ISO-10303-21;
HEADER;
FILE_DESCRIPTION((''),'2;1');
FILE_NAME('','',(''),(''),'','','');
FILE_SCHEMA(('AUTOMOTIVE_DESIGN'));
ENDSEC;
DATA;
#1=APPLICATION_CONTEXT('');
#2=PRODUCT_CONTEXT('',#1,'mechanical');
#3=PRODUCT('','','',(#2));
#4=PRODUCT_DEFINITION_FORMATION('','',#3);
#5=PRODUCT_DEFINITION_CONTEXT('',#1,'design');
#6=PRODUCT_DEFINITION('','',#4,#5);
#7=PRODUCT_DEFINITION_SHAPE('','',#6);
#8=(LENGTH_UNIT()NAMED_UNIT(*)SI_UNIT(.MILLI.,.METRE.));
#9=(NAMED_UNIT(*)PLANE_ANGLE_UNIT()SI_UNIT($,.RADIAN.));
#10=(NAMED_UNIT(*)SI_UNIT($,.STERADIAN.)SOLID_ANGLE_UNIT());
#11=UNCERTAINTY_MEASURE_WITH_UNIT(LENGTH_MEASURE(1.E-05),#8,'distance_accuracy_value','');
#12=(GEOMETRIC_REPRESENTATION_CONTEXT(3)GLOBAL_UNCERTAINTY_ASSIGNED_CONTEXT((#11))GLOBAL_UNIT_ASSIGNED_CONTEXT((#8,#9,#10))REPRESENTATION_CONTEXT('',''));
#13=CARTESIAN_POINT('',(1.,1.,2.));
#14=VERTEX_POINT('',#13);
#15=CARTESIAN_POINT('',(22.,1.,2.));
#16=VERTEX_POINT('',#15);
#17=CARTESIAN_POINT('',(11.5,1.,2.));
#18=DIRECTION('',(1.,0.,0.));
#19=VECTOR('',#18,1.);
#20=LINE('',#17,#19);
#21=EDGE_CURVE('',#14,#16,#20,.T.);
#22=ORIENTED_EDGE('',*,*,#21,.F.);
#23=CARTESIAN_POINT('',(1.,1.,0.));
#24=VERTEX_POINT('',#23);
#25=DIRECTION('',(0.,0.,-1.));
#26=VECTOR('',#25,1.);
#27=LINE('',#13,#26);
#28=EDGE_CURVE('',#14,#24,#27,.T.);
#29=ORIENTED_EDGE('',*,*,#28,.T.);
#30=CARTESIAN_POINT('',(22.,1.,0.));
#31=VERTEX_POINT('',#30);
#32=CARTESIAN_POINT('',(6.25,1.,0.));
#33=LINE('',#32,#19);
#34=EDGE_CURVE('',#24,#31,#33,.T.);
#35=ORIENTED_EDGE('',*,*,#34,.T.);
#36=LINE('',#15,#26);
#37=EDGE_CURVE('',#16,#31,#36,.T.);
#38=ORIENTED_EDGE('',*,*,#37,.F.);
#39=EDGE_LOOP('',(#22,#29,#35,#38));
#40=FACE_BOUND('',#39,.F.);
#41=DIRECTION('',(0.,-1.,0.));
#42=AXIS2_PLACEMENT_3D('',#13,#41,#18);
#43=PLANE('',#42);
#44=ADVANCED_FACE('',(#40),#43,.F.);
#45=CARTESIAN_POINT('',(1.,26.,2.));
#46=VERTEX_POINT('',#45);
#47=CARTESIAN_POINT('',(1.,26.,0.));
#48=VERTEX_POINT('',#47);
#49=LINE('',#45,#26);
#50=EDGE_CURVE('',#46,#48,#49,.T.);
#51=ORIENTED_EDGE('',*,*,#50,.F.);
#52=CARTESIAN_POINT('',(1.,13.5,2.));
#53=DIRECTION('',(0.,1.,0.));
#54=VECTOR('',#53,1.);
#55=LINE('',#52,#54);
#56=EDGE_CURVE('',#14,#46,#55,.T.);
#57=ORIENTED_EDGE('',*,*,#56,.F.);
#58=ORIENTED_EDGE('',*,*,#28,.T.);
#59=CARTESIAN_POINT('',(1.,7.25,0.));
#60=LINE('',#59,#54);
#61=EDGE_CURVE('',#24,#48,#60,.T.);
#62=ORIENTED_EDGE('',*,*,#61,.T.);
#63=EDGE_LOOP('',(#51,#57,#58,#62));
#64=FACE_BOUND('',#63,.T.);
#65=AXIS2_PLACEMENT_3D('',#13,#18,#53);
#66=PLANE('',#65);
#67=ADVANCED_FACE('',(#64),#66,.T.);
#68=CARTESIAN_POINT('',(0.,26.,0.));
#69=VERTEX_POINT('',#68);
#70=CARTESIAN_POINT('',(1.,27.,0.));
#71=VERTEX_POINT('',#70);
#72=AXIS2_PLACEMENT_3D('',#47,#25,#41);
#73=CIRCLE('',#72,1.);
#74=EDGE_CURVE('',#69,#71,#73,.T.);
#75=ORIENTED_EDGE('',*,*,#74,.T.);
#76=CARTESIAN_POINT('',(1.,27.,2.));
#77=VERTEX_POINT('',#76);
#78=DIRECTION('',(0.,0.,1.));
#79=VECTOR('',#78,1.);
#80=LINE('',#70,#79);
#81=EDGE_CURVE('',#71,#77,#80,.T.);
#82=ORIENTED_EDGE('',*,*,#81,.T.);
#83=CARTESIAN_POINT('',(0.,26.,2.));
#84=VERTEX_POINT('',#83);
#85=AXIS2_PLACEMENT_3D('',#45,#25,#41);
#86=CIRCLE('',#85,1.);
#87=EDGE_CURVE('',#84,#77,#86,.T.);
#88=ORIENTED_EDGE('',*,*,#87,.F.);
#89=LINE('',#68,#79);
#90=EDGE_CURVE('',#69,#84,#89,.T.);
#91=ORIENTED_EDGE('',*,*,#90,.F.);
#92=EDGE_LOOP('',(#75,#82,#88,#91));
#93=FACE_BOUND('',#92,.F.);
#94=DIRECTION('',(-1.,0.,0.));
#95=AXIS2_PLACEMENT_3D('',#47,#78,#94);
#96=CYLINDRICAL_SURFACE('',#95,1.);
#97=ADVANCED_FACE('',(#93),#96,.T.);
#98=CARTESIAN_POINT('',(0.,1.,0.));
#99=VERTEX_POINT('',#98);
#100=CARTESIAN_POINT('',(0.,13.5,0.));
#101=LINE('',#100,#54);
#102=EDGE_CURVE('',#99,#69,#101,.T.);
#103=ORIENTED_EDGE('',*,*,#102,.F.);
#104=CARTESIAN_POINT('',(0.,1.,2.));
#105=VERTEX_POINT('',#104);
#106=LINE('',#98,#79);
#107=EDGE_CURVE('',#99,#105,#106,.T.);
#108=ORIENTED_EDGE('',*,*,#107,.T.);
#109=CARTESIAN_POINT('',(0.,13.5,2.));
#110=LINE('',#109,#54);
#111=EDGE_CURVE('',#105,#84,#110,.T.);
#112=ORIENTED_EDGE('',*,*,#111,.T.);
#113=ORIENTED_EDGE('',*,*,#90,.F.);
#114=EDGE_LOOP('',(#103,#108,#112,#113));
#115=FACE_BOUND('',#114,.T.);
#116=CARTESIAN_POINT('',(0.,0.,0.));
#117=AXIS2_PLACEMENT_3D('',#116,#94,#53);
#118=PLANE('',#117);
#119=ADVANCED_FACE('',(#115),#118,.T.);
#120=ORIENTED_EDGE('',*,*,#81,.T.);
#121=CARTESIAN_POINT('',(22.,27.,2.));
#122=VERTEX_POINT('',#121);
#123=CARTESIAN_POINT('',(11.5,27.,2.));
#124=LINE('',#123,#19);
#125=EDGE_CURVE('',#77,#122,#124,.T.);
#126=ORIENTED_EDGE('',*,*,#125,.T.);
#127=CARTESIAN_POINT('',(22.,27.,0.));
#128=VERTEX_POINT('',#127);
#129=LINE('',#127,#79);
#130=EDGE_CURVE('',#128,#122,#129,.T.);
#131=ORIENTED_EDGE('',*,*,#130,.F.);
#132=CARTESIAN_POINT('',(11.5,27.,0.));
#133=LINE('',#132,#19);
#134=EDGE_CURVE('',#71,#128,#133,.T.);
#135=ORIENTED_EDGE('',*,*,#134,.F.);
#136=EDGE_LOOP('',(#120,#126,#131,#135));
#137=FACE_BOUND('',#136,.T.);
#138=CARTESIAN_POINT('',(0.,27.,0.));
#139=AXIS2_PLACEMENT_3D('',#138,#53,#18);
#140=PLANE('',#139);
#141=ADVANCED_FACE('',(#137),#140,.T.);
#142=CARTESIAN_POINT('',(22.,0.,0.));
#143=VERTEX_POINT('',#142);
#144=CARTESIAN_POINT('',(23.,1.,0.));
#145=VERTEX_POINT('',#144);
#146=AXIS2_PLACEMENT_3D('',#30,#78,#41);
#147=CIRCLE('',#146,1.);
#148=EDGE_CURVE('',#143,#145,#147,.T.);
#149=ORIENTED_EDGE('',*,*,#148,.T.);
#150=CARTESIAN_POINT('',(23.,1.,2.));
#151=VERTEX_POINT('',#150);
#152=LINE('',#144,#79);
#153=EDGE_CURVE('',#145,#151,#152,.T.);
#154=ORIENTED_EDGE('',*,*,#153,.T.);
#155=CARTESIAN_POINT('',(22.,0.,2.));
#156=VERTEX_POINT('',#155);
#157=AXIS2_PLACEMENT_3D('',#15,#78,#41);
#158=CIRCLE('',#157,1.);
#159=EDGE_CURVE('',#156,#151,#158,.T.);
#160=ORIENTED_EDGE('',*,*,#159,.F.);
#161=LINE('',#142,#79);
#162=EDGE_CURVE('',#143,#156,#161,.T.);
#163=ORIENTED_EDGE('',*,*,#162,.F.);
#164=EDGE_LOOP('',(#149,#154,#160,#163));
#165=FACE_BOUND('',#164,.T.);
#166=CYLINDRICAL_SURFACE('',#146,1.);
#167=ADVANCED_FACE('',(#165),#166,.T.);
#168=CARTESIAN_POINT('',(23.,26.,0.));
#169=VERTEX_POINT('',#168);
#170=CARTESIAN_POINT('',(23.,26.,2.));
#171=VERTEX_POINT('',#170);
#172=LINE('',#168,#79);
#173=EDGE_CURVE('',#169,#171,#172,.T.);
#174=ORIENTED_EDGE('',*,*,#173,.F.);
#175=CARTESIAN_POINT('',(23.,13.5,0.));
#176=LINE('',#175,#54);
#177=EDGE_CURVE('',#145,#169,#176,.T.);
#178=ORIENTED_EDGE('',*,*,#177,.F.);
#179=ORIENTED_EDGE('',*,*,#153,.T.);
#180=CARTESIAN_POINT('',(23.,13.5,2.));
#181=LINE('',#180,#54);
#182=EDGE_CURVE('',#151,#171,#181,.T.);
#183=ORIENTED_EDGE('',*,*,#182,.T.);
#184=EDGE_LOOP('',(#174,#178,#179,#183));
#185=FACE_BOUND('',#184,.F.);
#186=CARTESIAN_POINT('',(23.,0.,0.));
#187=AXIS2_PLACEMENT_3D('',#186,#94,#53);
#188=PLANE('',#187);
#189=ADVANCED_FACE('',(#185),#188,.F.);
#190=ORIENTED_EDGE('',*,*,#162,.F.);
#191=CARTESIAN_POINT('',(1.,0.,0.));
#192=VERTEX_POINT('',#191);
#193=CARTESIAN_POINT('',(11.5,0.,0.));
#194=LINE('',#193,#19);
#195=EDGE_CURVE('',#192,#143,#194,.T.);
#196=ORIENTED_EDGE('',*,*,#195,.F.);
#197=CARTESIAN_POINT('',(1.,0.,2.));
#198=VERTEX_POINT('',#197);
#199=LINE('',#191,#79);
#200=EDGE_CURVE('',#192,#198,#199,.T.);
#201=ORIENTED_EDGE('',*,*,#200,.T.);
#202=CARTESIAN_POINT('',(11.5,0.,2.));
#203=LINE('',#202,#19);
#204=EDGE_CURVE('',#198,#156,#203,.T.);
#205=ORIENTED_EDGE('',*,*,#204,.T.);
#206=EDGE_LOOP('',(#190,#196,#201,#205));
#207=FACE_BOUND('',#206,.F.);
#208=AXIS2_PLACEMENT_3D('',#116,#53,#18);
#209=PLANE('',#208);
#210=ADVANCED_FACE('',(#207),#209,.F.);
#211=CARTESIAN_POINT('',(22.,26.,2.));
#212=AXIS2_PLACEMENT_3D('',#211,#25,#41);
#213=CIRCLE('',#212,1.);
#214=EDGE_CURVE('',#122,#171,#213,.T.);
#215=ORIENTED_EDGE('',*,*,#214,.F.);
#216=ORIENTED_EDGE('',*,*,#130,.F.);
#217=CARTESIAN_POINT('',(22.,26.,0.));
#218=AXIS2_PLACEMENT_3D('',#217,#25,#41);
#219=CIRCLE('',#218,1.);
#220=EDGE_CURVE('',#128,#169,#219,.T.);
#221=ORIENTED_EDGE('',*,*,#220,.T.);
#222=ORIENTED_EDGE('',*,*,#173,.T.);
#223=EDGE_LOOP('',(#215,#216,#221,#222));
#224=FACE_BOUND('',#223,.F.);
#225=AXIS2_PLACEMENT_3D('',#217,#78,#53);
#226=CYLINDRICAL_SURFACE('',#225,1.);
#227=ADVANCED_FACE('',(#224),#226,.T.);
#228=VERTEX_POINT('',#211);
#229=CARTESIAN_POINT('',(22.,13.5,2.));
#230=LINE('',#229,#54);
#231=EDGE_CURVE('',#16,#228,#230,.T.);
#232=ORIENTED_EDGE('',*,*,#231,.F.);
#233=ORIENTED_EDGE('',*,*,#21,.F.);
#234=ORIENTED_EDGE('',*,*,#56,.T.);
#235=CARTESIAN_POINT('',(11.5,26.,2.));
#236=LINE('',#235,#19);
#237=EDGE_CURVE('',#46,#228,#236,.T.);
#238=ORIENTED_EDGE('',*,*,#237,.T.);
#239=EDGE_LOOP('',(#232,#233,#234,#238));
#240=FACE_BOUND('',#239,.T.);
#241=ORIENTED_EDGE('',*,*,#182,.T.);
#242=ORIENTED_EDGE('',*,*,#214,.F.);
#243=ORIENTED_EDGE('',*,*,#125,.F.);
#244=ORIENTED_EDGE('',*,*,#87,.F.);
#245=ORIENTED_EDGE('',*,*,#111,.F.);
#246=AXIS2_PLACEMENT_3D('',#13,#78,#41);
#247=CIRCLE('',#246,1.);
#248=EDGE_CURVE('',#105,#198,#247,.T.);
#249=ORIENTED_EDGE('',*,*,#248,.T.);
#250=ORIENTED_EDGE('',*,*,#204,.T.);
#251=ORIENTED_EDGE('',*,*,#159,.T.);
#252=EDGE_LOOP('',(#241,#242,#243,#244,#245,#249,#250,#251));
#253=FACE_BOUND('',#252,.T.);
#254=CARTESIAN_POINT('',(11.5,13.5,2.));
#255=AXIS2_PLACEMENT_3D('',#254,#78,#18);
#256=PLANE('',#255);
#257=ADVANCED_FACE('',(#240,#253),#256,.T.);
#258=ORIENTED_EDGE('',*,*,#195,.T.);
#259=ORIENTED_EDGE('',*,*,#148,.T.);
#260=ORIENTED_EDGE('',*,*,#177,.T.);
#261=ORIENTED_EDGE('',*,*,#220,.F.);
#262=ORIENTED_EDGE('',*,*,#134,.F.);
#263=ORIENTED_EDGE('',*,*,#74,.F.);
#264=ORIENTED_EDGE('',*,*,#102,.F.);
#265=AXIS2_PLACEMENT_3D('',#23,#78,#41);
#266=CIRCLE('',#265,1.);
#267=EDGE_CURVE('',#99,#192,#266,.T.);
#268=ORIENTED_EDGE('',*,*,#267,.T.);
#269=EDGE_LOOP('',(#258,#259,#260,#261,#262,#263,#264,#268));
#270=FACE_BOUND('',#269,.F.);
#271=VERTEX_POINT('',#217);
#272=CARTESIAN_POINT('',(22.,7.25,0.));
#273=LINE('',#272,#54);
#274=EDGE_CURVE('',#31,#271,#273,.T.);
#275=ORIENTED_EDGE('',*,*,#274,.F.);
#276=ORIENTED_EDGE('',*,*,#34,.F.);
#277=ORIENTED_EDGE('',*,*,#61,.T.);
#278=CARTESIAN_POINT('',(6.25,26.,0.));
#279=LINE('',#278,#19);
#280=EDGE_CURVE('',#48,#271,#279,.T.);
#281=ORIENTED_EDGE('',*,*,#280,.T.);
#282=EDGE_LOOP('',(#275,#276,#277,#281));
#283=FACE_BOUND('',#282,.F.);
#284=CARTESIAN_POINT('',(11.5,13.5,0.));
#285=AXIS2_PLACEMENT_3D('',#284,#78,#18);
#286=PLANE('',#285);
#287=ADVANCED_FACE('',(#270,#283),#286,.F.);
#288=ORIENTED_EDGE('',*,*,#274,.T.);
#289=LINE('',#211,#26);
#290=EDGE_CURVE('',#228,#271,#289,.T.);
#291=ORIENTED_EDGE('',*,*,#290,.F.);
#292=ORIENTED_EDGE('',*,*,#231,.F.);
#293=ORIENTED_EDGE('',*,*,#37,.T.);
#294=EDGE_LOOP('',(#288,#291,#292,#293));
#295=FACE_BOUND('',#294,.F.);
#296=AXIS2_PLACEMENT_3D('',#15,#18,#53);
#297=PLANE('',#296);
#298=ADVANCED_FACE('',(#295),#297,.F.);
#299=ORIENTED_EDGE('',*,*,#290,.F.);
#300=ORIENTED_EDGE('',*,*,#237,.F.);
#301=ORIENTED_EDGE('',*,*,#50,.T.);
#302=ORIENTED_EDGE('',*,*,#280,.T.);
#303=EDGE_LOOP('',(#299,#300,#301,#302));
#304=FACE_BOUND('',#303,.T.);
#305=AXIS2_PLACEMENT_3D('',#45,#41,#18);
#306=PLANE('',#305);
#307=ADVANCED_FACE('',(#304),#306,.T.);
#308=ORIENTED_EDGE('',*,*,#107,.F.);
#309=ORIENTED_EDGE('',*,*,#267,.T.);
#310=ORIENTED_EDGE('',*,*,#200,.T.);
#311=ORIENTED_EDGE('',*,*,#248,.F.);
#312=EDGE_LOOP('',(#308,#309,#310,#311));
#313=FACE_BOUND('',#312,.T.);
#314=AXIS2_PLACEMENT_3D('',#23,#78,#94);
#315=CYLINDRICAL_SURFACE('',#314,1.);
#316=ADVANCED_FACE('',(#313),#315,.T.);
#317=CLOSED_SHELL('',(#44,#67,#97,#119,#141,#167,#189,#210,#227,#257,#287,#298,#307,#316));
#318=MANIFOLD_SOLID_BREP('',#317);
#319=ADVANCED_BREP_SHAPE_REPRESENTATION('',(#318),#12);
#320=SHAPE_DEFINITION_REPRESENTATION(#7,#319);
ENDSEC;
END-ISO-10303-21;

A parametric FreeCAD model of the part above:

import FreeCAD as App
import Part
import Sketcher

V = App.Vector


def edges_at(feature, points):
    """Names of the edges that pass closest to the given points."""
    edges = feature.Shape.Edges
    near = lambda p: min(range(len(edges)), key=lambda i: edges[i].distToShape(Part.Vertex(*p))[0])
    return sorted({f"Edge{near(p) + 1}" for p in points})


def add_polygon(sketch, points):
    """Adds a closed chain of lines whose ends are joined by coincident constraints."""
    first, n = sketch.GeometryCount, len(points)
    for a, b in zip(points, points[1:] + points[:1]):
        sketch.addGeometry(Part.LineSegment(App.Vector(*a, 0), App.Vector(*b, 0)), False)
    for i in range(n):
        sketch.addConstraint(Sketcher.Constraint("Coincident", first + i, 2, first + (i + 1) % n, 1))

doc = App.newDocument("Part")
body = doc.addObject("PartDesign::Body", "Body")

sketch1 = doc.addObject("Sketcher::SketchObject", "Sketch")
body.addObject(sketch1)
sketch1.AttachmentSupport = (doc.XY_Plane, [""])
sketch1.MapMode = "FlatFace"
add_polygon(sketch1, [(0, 27), (0, 0), (23, 0), (23, 27)])
sketch1.addConstraint([
    Sketcher.Constraint("Vertical", 0),
    Sketcher.Constraint("Horizontal", 1),
    Sketcher.Constraint("Vertical", 2),
    Sketcher.Constraint("Horizontal", 3),
    Sketcher.Constraint("Coincident", 0, 2, -1, 1),
    Sketcher.Constraint("DistanceX", 1, 1, 1, 2, 23.0),
    Sketcher.Constraint("DistanceY", 0, 2, 0, 1, 27.0),
])
pad1 = doc.addObject("PartDesign::Pad", "Pad")
body.addObject(pad1)
pad1.Profile = sketch1
pad1.Length = 2

sketch2 = doc.addObject("Sketcher::SketchObject", "Sketch001")
body.addObject(sketch2)
sketch2.AttachmentSupport = (doc.XY_Plane, [""])
sketch2.MapMode = "FlatFace"
sketch2.AttachmentOffset = App.Placement(V(0, 0, 2), App.Rotation())
add_polygon(sketch2, [(1, 26), (1, 1), (22, 1), (22, 26)])
sketch2.addConstraint([
    Sketcher.Constraint("Vertical", 0),
    Sketcher.Constraint("Horizontal", 1),
    Sketcher.Constraint("Vertical", 2),
    Sketcher.Constraint("Horizontal", 3),
    Sketcher.Constraint("DistanceX", 1, 1, 1, 2, 21.0),
    Sketcher.Constraint("DistanceY", 0, 2, 0, 1, 25.0),
    Sketcher.Constraint("DistanceX", -1, 1, 0, 2, 1.0),
    Sketcher.Constraint("DistanceY", -1, 1, 0, 2, 1.0),
])
pocket1 = doc.addObject("PartDesign::Pocket", "Pocket")
body.addObject(pocket1)
pocket1.Profile = sketch2
pocket1.Type = "ThroughAll"
doc.recompute()

fillet = doc.addObject("PartDesign::Fillet", "Fillet")
body.addObject(fillet)
fillet.Base = (pocket1, edges_at(pocket1, [
    (23, 0, 1),
    (23, 27, 1),
    (0, 0, 1),
    (0, 27, 1),
]))
fillet.Radius = 1

doc.recompute()
